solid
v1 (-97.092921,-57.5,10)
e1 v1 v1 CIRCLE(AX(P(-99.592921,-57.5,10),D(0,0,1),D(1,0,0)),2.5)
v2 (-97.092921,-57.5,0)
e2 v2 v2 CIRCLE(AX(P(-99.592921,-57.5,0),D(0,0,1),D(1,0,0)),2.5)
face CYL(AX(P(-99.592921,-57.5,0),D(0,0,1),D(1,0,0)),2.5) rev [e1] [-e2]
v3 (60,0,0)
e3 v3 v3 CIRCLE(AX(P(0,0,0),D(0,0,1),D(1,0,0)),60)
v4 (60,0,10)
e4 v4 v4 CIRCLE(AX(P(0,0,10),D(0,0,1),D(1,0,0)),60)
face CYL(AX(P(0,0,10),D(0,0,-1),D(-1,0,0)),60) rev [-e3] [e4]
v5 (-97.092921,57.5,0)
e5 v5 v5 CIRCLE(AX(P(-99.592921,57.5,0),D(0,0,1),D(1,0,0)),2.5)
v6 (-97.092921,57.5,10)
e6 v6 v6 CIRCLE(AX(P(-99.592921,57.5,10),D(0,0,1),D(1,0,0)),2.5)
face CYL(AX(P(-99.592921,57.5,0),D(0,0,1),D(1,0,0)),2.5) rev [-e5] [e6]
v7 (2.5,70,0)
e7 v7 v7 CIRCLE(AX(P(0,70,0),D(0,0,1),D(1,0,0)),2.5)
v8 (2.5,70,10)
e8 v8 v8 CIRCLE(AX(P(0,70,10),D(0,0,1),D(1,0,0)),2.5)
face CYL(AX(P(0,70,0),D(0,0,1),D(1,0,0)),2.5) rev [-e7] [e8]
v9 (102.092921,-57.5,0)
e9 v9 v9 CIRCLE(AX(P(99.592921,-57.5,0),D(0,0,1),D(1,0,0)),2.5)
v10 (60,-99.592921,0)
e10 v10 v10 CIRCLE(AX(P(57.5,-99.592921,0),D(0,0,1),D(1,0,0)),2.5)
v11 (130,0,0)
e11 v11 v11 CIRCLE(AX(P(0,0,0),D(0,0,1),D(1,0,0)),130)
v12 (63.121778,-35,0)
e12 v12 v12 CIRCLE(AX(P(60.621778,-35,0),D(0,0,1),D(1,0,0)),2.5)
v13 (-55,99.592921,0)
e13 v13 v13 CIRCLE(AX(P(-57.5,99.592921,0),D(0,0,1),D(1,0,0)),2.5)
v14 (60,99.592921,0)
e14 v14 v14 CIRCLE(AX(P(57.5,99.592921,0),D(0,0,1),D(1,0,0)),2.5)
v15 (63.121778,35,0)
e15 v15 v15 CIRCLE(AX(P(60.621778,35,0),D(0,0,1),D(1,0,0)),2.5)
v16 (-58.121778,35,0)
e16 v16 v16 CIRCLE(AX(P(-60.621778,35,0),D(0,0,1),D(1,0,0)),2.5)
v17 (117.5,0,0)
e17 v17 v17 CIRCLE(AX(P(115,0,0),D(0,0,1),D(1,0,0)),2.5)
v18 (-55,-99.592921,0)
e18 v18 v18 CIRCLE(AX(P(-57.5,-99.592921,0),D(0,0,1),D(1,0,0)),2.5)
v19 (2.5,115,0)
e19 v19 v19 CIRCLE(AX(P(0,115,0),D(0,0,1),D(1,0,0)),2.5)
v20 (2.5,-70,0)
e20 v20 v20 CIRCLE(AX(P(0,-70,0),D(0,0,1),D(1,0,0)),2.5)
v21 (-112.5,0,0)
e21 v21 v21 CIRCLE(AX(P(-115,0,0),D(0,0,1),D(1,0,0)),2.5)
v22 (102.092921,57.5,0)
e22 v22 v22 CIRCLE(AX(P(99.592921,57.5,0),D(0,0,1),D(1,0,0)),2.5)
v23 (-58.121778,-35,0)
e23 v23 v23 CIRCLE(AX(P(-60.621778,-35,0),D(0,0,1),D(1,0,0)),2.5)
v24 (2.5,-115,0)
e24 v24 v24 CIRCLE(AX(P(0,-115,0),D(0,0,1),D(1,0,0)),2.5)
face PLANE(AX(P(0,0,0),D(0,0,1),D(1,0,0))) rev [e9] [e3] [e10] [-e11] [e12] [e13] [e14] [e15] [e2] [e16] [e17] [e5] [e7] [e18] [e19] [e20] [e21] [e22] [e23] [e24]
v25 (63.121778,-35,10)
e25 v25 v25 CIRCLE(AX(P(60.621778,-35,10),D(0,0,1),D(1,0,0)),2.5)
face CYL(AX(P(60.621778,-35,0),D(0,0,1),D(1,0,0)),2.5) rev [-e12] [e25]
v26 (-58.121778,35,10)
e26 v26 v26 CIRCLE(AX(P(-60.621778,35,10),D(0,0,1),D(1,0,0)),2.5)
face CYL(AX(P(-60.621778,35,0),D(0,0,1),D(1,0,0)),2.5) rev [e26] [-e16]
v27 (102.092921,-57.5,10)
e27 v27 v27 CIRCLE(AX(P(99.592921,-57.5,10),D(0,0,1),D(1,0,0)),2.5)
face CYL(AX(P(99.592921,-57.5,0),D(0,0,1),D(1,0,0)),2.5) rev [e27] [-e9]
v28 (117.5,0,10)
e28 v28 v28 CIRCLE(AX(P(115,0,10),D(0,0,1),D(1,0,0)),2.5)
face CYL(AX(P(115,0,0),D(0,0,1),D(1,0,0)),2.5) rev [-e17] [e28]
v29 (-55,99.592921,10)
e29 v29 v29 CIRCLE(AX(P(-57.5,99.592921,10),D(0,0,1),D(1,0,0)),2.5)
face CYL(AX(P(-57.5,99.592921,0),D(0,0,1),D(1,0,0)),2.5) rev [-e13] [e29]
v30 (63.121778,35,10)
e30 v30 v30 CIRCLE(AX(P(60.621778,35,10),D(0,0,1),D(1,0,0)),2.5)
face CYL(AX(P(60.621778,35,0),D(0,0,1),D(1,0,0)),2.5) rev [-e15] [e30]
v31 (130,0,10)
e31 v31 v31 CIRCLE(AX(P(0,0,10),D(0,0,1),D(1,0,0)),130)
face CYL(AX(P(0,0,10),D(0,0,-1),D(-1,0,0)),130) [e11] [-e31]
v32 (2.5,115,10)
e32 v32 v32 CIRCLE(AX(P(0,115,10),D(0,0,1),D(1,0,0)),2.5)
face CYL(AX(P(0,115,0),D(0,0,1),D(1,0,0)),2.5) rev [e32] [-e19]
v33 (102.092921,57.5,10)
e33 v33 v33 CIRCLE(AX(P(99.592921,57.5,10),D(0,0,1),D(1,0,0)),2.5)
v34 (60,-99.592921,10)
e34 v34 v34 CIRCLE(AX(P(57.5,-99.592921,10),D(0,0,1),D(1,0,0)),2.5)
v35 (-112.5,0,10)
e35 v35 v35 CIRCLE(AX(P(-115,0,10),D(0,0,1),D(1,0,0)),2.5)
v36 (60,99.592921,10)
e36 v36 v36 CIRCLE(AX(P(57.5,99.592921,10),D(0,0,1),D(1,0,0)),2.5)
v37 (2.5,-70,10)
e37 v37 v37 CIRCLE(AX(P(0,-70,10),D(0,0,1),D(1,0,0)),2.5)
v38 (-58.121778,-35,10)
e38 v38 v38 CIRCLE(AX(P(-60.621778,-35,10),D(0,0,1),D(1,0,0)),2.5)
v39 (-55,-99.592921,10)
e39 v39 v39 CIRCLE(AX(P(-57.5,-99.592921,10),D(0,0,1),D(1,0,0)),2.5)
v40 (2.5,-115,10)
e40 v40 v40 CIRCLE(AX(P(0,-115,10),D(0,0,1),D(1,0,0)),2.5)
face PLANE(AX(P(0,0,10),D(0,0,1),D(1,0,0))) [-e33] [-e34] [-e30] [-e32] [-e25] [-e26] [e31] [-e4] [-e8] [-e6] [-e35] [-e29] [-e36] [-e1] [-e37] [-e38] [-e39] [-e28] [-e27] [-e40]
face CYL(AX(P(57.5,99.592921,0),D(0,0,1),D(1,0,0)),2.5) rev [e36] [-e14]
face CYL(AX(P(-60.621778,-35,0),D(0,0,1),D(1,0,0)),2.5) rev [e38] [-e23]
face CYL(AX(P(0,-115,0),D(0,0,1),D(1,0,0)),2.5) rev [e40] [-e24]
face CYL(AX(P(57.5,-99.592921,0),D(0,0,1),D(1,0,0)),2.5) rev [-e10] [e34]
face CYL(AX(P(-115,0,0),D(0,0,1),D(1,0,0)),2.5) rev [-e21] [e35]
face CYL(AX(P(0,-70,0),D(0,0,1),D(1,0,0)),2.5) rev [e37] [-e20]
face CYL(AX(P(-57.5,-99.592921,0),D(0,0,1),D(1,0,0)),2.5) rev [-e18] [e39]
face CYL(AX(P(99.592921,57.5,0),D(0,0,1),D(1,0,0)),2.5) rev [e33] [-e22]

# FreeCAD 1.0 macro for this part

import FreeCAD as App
import Part
import Sketcher
from FreeCAD import Vector
Q = App.Units.Quantity

doc = App.newDocument("Part")
body = doc.addObject("PartDesign::Body", "Body")

# Sketch on XY plane
sketch1 = body.newObject("Sketcher::SketchObject", "Sketch")
sketch1.AttachmentSupport = (doc.getObject("XY_Plane"), [""])
sketch1.MapMode = "FlatFace"
sketch1.addGeometry(Part.Circle(Vector(0, 0, 0), Vector(0, 0, 1), 130), False)
sketch1.addGeometry(Part.Circle(Vector(0, 0, 0), Vector(0, 0, 1), 60), False)
sketch1.addConstraint(Sketcher.Constraint("Coincident", 0, 3, -1, 1))
sketch1.addConstraint(Sketcher.Constraint("Coincident", 1, 3, -1, 1))
sketch1.addConstraint(Sketcher.Constraint("Diameter", 0, Q("260 mm")))
sketch1.addConstraint(Sketcher.Constraint("Diameter", 1, Q("120 mm")))
pad1 = body.newObject("PartDesign::Pad", "Pad")
pad1.Profile = sketch1
pad1.Length = 10

# Sketch on XY plane
sketch2 = body.newObject("Sketcher::SketchObject", "Sketch001")
sketch2.AttachmentSupport = (doc.getObject("XY_Plane"), [""])
sketch2.MapMode = "FlatFace"
sketch2.AttachmentOffset = App.Placement(Vector(0, 0, 10), App.Rotation())
sketch2.addGeometry(Part.Circle(Vector(0, 70, 0), Vector(0, 0, 1), 2.5), False)
sketch2.addGeometry(Part.Circle(Vector(60.6, 35, 0), Vector(0, 0, 1), 2.5), False)
sketch2.addGeometry(Part.Circle(Vector(60.6, -35, 0), Vector(0, 0, 1), 2.5), False)
sketch2.addGeometry(Part.Circle(Vector(0, -70, 0), Vector(0, 0, 1), 2.5), False)
sketch2.addGeometry(Part.Circle(Vector(-60.6, -35, 0), Vector(0, 0, 1), 2.5), False)
sketch2.addGeometry(Part.Circle(Vector(-60.6, 35, 0), Vector(0, 0, 1), 2.5), False)
sketch2.addConstraint(Sketcher.Constraint("Equal", 0, 1))
sketch2.addConstraint(Sketcher.Constraint("Equal", 1, 2))
sketch2.addConstraint(Sketcher.Constraint("Equal", 2, 3))
sketch2.addConstraint(Sketcher.Constraint("Equal", 3, 4))
sketch2.addConstraint(Sketcher.Constraint("Equal", 4, 5))
sketch2.addConstraint(Sketcher.Constraint("Symmetric", 0, 3, 3, 3, -1, 1))
sketch2.addConstraint(Sketcher.Constraint("Symmetric", 1, 3, 4, 3, -1, 1))
sketch2.addConstraint(Sketcher.Constraint("Symmetric", 2, 3, 5, 3, -1, 1))
sketch2.addConstraint(Sketcher.Constraint("Symmetric", 2, 3, 4, 3, -2))
sketch2.addConstraint(Sketcher.Constraint("PointOnObject", 0, 3, -2))
sketch2.addConstraint(Sketcher.Constraint("Diameter", 0, Q("5 mm")))
sketch2.addConstraint(Sketcher.Constraint("DistanceY", -1, 1, 0, 3, Q("70 mm")))
sketch2.addConstraint(Sketcher.Constraint("DistanceY", -1, 1, 1, 3, Q("35 mm")))
sketch2.addConstraint(Sketcher.Constraint("DistanceX", -1, 1, 1, 3, Q("60.621778 mm")))
pocket1 = body.newObject("PartDesign::Pocket", "Pocket")
pocket1.Profile = sketch2
pocket1.Type = "ThroughAll"

# Sketch on XY plane
sketch3 = body.newObject("Sketcher::SketchObject", "Sketch002")
sketch3.AttachmentSupport = (doc.getObject("XY_Plane"), [""])
sketch3.MapMode = "FlatFace"
sketch3.AttachmentOffset = App.Placement(Vector(0, 0, 10), App.Rotation())
sketch3.addGeometry(Part.Circle(Vector(0, 115, 0), Vector(0, 0, 1), 2.5), False)
sketch3.addGeometry(Part.Circle(Vector(57.5, 99.6, 0), Vector(0, 0, 1), 2.5), False)
sketch3.addGeometry(Part.Circle(Vector(99.6, 57.5, 0), Vector(0, 0, 1), 2.5), False)
sketch3.addGeometry(Part.Circle(Vector(115, 0, 0), Vector(0, 0, 1), 2.5), False)
sketch3.addGeometry(Part.Circle(Vector(99.6, -57.5, 0), Vector(0, 0, 1), 2.5), False)
sketch3.addGeometry(Part.Circle(Vector(57.5, -99.6, 0), Vector(0, 0, 1), 2.5), False)
sketch3.addGeometry(Part.Circle(Vector(0, -115, 0), Vector(0, 0, 1), 2.5), False)
sketch3.addGeometry(Part.Circle(Vector(-57.5, -99.6, 0), Vector(0, 0, 1), 2.5), False)
sketch3.addGeometry(Part.Circle(Vector(-99.6, -57.5, 0), Vector(0, 0, 1), 2.5), False)
sketch3.addGeometry(Part.Circle(Vector(-115, 0, 0), Vector(0, 0, 1), 2.5), False)
sketch3.addGeometry(Part.Circle(Vector(-99.6, 57.5, 0), Vector(0, 0, 1), 2.5), False)
sketch3.addGeometry(Part.Circle(Vector(-57.5, 99.6, 0), Vector(0, 0, 1), 2.5), False)
sketch3.addConstraint(Sketcher.Constraint("Equal", 0, 1))
sketch3.addConstraint(Sketcher.Constraint("Equal", 1, 2))
sketch3.addConstraint(Sketcher.Constraint("Equal", 2, 3))
sketch3.addConstraint(Sketcher.Constraint("Equal", 3, 4))
sketch3.addConstraint(Sketcher.Constraint("Equal", 4, 5))
sketch3.addConstraint(Sketcher.Constraint("Equal", 5, 6))
sketch3.addConstraint(Sketcher.Constraint("Equal", 6, 7))
sketch3.addConstraint(Sketcher.Constraint("Equal", 7, 8))
sketch3.addConstraint(Sketcher.Constraint("Equal", 8, 9))
sketch3.addConstraint(Sketcher.Constraint("Equal", 9, 10))
sketch3.addConstraint(Sketcher.Constraint("Equal", 10, 11))
sketch3.addConstraint(Sketcher.Constraint("Symmetric", 0, 3, 6, 3, -1, 1))
sketch3.addConstraint(Sketcher.Constraint("Symmetric", 1, 3, 7, 3, -1, 1))
sketch3.addConstraint(Sketcher.Constraint("Symmetric", 2, 3, 8, 3, -1, 1))
sketch3.addConstraint(Sketcher.Constraint("Symmetric", 3, 3, 9, 3, -1, 1))
sketch3.addConstraint(Sketcher.Constraint("Symmetric", 4, 3, 10, 3, -1, 1))
sketch3.addConstraint(Sketcher.Constraint("Symmetric", 5, 3, 11, 3, -1, 1))
sketch3.addConstraint(Sketcher.Constraint("Symmetric", 5, 3, 7, 3, -2))
sketch3.addConstraint(Sketcher.Constraint("Symmetric", 4, 3, 8, 3, -2))
sketch3.addConstraint(Sketcher.Constraint("PointOnObject", 0, 3, -2))
sketch3.addConstraint(Sketcher.Constraint("PointOnObject", 3, 3, -1))
sketch3.addConstraint(Sketcher.Constraint("Diameter", 0, Q("5 mm")))
sketch3.addConstraint(Sketcher.Constraint("DistanceY", -1, 1, 0, 3, Q("115 mm")))
sketch3.addConstraint(Sketcher.Constraint("DistanceX", -1, 1, 3, 3, Q("115 mm")))
sketch3.addConstraint(Sketcher.Constraint("DistanceY", 4, 3, 2, 3, Q("115 mm")))
sketch3.addConstraint(Sketcher.Constraint("DistanceX", 7, 3, 5, 3, Q("115 mm")))
sketch3.addConstraint(Sketcher.Constraint("DistanceY", -1, 1, 1, 3, Q("99.592921 mm")))
sketch3.addConstraint(Sketcher.Constraint("DistanceX", -1, 1, 2, 3, Q("99.592921 mm")))
pocket2 = body.newObject("PartDesign::Pocket", "Pocket001")
pocket2.Profile = sketch3
pocket2.Type = "ThroughAll"

doc.recompute()
